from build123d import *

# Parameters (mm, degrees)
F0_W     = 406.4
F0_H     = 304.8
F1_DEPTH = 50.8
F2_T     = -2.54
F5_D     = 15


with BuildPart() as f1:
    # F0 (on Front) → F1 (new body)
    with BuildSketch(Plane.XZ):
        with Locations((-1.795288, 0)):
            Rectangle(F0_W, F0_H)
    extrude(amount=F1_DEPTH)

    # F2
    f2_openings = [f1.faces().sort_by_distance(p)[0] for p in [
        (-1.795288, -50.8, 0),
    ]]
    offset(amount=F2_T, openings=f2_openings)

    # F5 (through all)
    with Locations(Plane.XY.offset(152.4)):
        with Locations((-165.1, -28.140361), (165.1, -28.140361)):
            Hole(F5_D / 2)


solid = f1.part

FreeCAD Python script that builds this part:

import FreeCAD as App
import Part
import Sketcher
Q = App.Units.Quantity


def faces_at(feature, points):
    """Names of the faces that lie closest to the given points."""
    faces = feature.Shape.Faces
    near = lambda p: min(range(len(faces)), key=lambda i: faces[i].distToShape(Part.Vertex(*p))[0])
    return sorted({f"Face{near(p) + 1}" for p in points})


def add_polygon(sketch, points):
    """Adds a closed chain of lines whose ends are joined by coincident constraints."""
    first, n = sketch.GeometryCount, len(points)
    for a, b in zip(points, points[1:] + points[:1]):
        sketch.addGeometry(Part.LineSegment(App.Vector(*a, 0), App.Vector(*b, 0)), False)
    for i in range(n):
        sketch.addConstraint(Sketcher.Constraint("Coincident", first + i, 2, first + (i + 1) % n, 1))

doc = App.newDocument("Part")
body = doc.addObject("PartDesign::Body", "Body")

# Sketch on XZ plane
sketch1 = body.newObject("Sketcher::SketchObject", "Sketch")
sketch1.AttachmentSupport = (doc.getObject("XZ_Plane"), [""])
sketch1.MapMode = "FlatFace"
add_polygon(sketch1, [(-205, 152), (-205, -152), (201, -152), (201, 152)])  # lines 0-3
sketch1.addConstraint(Sketcher.Constraint("Vertical", 0))
sketch1.addConstraint(Sketcher.Constraint("Horizontal", 1))
sketch1.addConstraint(Sketcher.Constraint("Vertical", 2))
sketch1.addConstraint(Sketcher.Constraint("Horizontal", 3))
sketch1.addConstraint(Sketcher.Constraint("DistanceX", 1, 1, 1, 2, Q("16 in")))
sketch1.addConstraint(Sketcher.Constraint("DistanceY", 0, 2, 0, 1, Q("12 in")))
sketch1.addConstraint(Sketcher.Constraint("DistanceY", 0, 2, -1, 1, Q("6 in")))
sketch1.addConstraint(Sketcher.Constraint("DistanceX", -1, 1, 1, 2, Q("201.404712 mm")))
pad1 = body.newObject("PartDesign::Pad", "Pad")
pad1.Profile = sketch1
pad1.Length = Q("2 in")
doc.recompute()

thickness = body.newObject("PartDesign::Thickness", "Thickness")
thickness.Base = (pad1, faces_at(pad1, [(-1.795, -50.8, 0)]))
thickness.Value = Q("0.1 in")
thickness.Reversed = True
thickness.Join = "Arc"

# Sketch on XY plane
sketch2 = body.newObject("Sketcher::SketchObject", "Sketch001")
sketch2.AttachmentSupport = (doc.getObject("XY_Plane"), [""])
sketch2.MapMode = "FlatFace"
sketch2.AttachmentOffset = App.Placement(App.Vector(0, 0, 6 * 25.4), App.Rotation())
sketch2.addGeometry(Part.Circle(App.Vector(-165, -28, 0), App.Vector(0, 0, 1), 8), False)
sketch2.addGeometry(Part.Circle(App.Vector(165, -28, 0), App.Vector(0, 0, 1), 8), False)
sketch2.addConstraint(Sketcher.Constraint("Equal", 0, 1))
sketch2.addConstraint(Sketcher.Constraint("Symmetric", 0, 3, 1, 3, -2))
sketch2.addConstraint(Sketcher.Constraint("DistanceX", 0, 3, 1, 3, Q("13 in")))
sketch2.addConstraint(Sketcher.Constraint("Diameter", 0, Q("15 mm")))
sketch2.addConstraint(Sketcher.Constraint("DistanceY", 0, 3, -1, 1, Q("28.140361 mm")))
doc.recompute()
hole = body.newObject("PartDesign::Hole", "Hole")
hole.Profile = sketch2
hole.ThreadType = "None"
hole.Diameter = 15
hole.DepthType = "ThroughAll"

doc.recompute()
